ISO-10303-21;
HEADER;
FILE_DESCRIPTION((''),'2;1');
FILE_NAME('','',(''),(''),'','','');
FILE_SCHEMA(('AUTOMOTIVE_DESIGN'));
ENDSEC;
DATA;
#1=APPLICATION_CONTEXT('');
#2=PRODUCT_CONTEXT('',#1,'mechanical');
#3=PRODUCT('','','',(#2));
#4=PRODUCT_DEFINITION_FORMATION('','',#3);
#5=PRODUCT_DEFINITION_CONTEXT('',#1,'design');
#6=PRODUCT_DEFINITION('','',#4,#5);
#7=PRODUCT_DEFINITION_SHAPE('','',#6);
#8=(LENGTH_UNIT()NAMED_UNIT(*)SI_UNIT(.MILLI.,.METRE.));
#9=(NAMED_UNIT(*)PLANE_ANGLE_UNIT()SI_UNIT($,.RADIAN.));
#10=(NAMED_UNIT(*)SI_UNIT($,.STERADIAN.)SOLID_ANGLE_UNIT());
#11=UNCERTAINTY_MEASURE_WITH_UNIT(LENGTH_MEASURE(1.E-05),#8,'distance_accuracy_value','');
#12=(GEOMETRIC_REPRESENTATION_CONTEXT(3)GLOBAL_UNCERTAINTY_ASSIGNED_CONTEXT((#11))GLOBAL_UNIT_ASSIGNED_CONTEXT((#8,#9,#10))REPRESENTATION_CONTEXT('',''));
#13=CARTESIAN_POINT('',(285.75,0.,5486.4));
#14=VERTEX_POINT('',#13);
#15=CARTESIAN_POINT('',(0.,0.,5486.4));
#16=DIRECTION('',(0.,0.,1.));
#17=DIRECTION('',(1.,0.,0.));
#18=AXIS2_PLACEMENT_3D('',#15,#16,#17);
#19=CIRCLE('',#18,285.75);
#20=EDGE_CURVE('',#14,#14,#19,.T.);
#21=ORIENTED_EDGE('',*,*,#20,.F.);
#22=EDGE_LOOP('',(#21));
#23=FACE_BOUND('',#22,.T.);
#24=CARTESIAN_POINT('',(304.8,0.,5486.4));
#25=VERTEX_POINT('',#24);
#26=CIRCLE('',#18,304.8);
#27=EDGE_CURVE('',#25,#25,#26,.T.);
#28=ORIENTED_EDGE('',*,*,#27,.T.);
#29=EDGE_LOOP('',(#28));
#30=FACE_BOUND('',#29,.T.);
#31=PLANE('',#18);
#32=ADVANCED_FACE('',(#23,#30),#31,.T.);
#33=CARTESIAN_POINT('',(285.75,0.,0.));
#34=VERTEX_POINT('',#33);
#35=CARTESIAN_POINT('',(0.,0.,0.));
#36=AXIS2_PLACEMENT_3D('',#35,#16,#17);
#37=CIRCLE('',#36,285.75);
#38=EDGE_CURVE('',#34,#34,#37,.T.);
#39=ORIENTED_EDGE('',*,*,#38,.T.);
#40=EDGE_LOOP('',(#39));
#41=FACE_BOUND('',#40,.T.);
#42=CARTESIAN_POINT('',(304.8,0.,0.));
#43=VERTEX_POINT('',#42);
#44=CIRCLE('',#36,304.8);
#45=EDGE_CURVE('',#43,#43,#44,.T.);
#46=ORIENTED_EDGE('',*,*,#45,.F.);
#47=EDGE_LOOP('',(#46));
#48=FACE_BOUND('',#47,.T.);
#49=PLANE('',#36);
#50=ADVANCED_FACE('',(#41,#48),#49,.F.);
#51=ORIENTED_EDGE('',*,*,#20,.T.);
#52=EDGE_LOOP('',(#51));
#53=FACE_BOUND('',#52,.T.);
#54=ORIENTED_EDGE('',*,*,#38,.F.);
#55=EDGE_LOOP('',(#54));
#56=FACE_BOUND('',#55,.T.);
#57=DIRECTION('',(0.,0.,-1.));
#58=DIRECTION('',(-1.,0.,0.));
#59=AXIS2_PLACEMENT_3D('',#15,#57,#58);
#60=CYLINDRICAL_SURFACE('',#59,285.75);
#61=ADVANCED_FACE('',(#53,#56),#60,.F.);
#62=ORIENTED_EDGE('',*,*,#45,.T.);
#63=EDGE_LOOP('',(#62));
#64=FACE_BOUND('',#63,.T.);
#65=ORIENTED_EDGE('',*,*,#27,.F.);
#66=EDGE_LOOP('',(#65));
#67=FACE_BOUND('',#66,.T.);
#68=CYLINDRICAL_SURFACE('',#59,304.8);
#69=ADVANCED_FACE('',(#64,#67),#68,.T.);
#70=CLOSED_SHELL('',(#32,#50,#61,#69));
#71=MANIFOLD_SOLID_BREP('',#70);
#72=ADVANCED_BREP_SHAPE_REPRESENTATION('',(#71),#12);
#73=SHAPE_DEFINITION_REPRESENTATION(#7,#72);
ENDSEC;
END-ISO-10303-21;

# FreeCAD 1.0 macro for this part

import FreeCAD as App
import Part
import Sketcher
Q = App.Units.Quantity

doc = App.newDocument("Part")
params = doc.addObject("Spreadsheet::Sheet", "Params")
for row, (alias, value) in enumerate([
    ("sketch1_diameter", "24 in"),
    ("sketch1_diameter2", "22.5 in"),
    ("pad1_length", "216 in"),
], start=1):
    params.set(f"A{row}", alias)
    params.set(f"B{row}", "=" + value)
    params.setAlias(f"B{row}", alias)

body = doc.addObject("PartDesign::Body", "Body")

sketch1 = body.newObject("Sketcher::SketchObject", "Sketch")
sketch1.AttachmentSupport = (doc.getObject("XY_Plane"), [""])
sketch1.MapMode = "FlatFace"
sketch1.addGeometry([
    Part.Circle(App.Vector(0, 0, 0), App.Vector(0, 0, 1), 305),
    Part.Circle(App.Vector(0, 0, 0), App.Vector(0, 0, 1), 286),
], False)
sketch1.addConstraint([
    Sketcher.Constraint("Coincident", 0, 3, -1, 1),
    Sketcher.Constraint("Coincident", 1, 3, -1, 1),
    Sketcher.Constraint("Diameter", 0, Q("24 in")),
    Sketcher.Constraint("Diameter", 1, Q("22.5 in")),
])
sketch1.setExpression("Constraints[2]", "Params.sketch1_diameter")
sketch1.setExpression("Constraints[3]", "Params.sketch1_diameter2")
pad1 = body.newObject("PartDesign::Pad", "Pad")
pad1.Profile = sketch1
pad1.setExpression("Length", "Params.pad1_length")

doc.recompute()
